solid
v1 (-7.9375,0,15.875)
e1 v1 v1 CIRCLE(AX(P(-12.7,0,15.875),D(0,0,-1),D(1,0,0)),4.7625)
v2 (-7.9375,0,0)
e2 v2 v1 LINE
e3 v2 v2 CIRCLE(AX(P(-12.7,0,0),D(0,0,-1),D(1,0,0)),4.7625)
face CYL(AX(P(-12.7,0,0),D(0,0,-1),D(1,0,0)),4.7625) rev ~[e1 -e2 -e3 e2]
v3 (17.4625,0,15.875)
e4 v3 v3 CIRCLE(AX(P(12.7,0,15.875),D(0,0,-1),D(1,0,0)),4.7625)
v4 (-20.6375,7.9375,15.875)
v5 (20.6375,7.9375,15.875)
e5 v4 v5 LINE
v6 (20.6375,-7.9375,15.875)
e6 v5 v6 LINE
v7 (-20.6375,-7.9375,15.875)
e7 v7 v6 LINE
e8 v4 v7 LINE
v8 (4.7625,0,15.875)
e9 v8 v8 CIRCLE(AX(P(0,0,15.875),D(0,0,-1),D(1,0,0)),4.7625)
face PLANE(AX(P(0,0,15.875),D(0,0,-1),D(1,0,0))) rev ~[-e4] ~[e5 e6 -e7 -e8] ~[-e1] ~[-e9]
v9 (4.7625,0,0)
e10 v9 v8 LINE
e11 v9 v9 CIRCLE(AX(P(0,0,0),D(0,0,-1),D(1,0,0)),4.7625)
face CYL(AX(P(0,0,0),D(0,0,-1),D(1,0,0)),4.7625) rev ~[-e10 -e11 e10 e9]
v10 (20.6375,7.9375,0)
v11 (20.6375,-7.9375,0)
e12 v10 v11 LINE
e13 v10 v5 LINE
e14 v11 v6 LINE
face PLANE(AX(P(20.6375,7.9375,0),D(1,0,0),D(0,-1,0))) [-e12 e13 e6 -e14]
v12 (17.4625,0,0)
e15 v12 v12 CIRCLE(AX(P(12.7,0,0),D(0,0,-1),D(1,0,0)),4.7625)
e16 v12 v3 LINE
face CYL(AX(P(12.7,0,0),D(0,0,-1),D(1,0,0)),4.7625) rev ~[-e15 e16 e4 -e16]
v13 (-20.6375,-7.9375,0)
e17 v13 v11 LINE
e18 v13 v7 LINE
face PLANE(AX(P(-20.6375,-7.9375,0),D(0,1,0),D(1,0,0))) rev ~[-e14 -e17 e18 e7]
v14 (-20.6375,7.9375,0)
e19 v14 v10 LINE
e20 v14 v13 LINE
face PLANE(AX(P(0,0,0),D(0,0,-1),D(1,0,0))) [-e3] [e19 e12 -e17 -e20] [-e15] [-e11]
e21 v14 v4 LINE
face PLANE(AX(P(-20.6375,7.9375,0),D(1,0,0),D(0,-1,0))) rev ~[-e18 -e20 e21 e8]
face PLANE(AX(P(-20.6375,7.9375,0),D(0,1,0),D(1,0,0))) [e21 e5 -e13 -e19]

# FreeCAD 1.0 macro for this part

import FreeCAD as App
import Part
import Sketcher
from FreeCAD import Vector
Q = App.Units.Quantity

doc = App.newDocument("Part")
body = doc.addObject("PartDesign::Body", "Body")

sketch1 = body.newObject("Sketcher::SketchObject", "Sketch")
sketch1.AttachmentSupport = (doc.getObject("XZ_Plane"), [""])
sketch1.MapMode = "FlatFace"
sketch1.addGeometry([
    Part.LineSegment(Vector(-20.6, 7.9, 0), Vector(-20.6, -7.9, 0)),
    Part.LineSegment(Vector(-20.6, -7.9, 0), Vector(20.6, -7.9, 0)),
    Part.LineSegment(Vector(20.6, -7.9, 0), Vector(20.6, 7.9, 0)),
    Part.LineSegment(Vector(20.6, 7.9, 0), Vector(-20.6, 7.9, 0)),
    Part.Circle(Vector(-12.7, 0, 0), Vector(0, 0, 1), 4.8),
    Part.Circle(Vector(0, 0, 0), Vector(0, 0, 1), 4.8),
    Part.Circle(Vector(12.7, 0, 0), Vector(0, 0, 1), 4.8),
], False)
sketch1.addConstraint([
    Sketcher.Constraint("Coincident", 0, 2, 1, 1),
    Sketcher.Constraint("Coincident", 1, 2, 2, 1),
    Sketcher.Constraint("Coincident", 2, 2, 3, 1),
    Sketcher.Constraint("Coincident", 3, 2, 0, 1),
    Sketcher.Constraint("Vertical", 0),
    Sketcher.Constraint("Horizontal", 1),
    Sketcher.Constraint("Vertical", 2),
    Sketcher.Constraint("Horizontal", 3),
    Sketcher.Constraint("Coincident", 5, 3, -1, 1),
    Sketcher.Constraint("Equal", 4, 5),
    Sketcher.Constraint("Equal", 5, 6),
    Sketcher.Constraint("Symmetric", 4, 3, 6, 3, -1, 1),
    Sketcher.Constraint("Symmetric", 0, 2, 2, 2, -1, 1),
    Sketcher.Constraint("PointOnObject", 4, 3, -1),
    Sketcher.Constraint("Diameter", 4, Q("0.375 in")),
    Sketcher.Constraint("DistanceX", 4, 3, 6, 3, Q("1 in")),
    Sketcher.Constraint("DistanceX", 1, 1, 1, 2, Q("1.625 in")),
    Sketcher.Constraint("DistanceY", 0, 2, 0, 1, Q("0.625 in")),
])
pad1 = body.newObject("PartDesign::Pad", "Pad")
pad1.Profile = sketch1
pad1.Length = Q("0.625 in")
pad1.Reversed = True
body2 = doc.addObject("PartDesign::Body", "Body001")
doc.recompute()

body.Placement = App.Placement(Vector(0, 0, 0), App.Rotation(Vector(1, 0, 0), 90))
boolean = body2.newObject("PartDesign::Boolean", "Boolean")
boolean.Type = "Fuse"
boolean.addObjects([body])

doc.recompute()
